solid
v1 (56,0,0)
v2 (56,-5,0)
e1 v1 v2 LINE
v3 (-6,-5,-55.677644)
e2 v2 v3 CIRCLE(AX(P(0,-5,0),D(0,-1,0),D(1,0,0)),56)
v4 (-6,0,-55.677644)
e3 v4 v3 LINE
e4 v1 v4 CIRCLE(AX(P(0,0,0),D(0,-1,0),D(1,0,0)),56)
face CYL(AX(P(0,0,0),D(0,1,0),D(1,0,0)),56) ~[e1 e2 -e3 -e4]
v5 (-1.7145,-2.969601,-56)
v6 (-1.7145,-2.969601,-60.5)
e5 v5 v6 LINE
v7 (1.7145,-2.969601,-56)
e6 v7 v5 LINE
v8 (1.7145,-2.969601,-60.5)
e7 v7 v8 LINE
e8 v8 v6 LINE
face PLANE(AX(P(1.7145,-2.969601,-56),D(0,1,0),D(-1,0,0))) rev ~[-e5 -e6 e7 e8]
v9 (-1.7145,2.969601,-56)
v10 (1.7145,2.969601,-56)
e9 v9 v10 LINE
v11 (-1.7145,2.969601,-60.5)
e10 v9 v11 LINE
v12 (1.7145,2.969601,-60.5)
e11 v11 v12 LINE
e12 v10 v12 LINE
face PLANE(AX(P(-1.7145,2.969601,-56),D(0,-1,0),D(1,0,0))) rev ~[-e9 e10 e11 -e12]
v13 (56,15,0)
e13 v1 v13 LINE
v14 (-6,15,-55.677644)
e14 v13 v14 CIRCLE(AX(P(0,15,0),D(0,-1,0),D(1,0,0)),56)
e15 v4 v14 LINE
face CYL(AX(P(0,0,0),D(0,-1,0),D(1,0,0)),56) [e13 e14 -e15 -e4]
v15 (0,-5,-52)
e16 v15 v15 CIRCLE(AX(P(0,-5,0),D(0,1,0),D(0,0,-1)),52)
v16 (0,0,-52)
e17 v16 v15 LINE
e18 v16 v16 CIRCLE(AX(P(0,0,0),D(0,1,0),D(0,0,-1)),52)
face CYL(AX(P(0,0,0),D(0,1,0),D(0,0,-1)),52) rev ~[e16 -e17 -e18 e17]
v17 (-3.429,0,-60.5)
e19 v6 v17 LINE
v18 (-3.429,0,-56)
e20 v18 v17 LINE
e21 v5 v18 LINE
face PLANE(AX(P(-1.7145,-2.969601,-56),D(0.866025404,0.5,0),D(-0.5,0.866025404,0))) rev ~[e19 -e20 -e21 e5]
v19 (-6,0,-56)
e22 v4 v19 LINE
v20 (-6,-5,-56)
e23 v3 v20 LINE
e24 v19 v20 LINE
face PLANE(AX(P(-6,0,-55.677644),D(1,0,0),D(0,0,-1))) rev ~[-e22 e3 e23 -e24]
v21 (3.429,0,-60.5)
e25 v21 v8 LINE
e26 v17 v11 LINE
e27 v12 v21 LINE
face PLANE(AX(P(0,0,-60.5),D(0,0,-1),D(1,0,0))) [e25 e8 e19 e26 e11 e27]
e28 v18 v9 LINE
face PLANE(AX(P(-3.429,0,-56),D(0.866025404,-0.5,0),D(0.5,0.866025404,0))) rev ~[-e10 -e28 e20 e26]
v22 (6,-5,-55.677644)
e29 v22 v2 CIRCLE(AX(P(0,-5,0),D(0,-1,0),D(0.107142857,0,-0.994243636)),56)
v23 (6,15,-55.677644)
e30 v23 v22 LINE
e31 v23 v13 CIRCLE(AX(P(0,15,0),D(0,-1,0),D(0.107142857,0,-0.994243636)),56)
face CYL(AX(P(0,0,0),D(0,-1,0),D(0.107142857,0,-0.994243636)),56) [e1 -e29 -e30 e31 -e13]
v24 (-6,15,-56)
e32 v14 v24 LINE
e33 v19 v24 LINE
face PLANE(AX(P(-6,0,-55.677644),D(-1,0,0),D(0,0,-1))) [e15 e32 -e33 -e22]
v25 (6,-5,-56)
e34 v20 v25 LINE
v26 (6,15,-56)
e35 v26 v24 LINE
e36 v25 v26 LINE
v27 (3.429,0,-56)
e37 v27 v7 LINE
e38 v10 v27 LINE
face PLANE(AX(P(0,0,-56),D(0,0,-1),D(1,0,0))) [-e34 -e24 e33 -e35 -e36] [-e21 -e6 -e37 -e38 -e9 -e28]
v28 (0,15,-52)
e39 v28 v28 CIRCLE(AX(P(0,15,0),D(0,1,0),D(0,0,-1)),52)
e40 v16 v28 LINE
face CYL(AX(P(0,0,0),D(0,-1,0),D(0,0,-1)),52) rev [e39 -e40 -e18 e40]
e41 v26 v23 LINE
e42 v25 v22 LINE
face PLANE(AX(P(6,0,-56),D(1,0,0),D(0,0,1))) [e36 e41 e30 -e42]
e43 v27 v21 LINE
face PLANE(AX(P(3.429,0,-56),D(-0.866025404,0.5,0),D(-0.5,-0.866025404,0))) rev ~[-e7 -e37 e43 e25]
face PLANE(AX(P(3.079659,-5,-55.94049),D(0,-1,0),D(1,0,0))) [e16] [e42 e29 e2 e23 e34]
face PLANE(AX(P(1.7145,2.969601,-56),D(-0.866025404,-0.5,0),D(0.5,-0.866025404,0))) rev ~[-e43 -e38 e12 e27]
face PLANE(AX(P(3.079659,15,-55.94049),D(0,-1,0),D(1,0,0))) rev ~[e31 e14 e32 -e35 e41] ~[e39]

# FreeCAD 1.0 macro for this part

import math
import FreeCAD as App
import Part
import Sketcher
from FreeCAD import Vector
Q = App.Units.Quantity


def add_polygon(sketch, points):
    """Adds a closed chain of lines whose ends are joined by coincident constraints."""
    first, n = sketch.GeometryCount, len(points)
    for a, b in zip(points, points[1:] + points[:1]):
        sketch.addGeometry(Part.LineSegment(App.Vector(*a, 0), App.Vector(*b, 0)), False)
    for i in range(n):
        sketch.addConstraint(Sketcher.Constraint("Coincident", first + i, 2, first + (i + 1) % n, 1))

doc = App.newDocument("Part")
body = doc.addObject("PartDesign::Body", "Body")

# Sketch on XZ plane
sketch1 = body.newObject("Sketcher::SketchObject", "Sketch")
sketch1.AttachmentSupport = (doc.getObject("XZ_Plane"), [""])
sketch1.MapMode = "FlatFace"
sketch1.addGeometry([
    Part.ArcOfCircle(Part.Circle(Vector(0, 0, 0), Vector(0, 0, 1), 56), math.radians(0), math.radians(263.84936)),  # 0
    Part.ArcOfCircle(Part.Circle(Vector(0, 0, 0), Vector(0, 0, 1), 56), math.radians(-96.15064), math.radians(-90)),  # 1
    Part.ArcOfCircle(Part.Circle(Vector(0, 0, 0), Vector(0, 0, 1), 56), math.radians(-90), math.radians(-83.84936)),  # 2
    Part.ArcOfCircle(Part.Circle(Vector(0, 0, 0), Vector(0, 0, 1), 56), math.radians(-83.84936), math.radians(0)),  # 3
    Part.Circle(Vector(0, 0, 0), Vector(0, 0, 1), 52),  # 4
], False)
sketch1.addConstraint([
    Sketcher.Constraint("Tangent", 0, 2, 1, 1),
    Sketcher.Constraint("Tangent", 1, 2, 2, 1),
    Sketcher.Constraint("Tangent", 2, 2, 3, 1),
    Sketcher.Constraint("Coincident", 3, 2, 0, 1),
    Sketcher.Constraint("Coincident", 0, 3, -1, 1),
    Sketcher.Constraint("Coincident", 2, 3, -1, 1),
    Sketcher.Constraint("Coincident", 4, 3, -1, 1),
    Sketcher.Constraint("PointOnObject", 1, 2, -2),
    Sketcher.Constraint("PointOnObject", 3, 2, -1),
    Sketcher.Constraint("Horizontal", 0, 2, 2, 2),
    Sketcher.Constraint("Diameter", 4, Q("104 mm")),
    Sketcher.Constraint("Radius", 0, Q("56 mm")),
    Sketcher.Constraint("DistanceX", 0, 2, -1, 1, Q("6 mm")),
])
pad1 = body.newObject("PartDesign::Pad", "Pad")
pad1.Profile = sketch1
pad1.Type = "TwoLengths"
pad1.Length = 15
pad1.Length2 = 5
pad1.Reversed = True

# Sketch on XZ plane
sketch2 = body.newObject("Sketcher::SketchObject", "Sketch001")
sketch2.AttachmentSupport = (doc.getObject("XZ_Plane"), [""])
sketch2.MapMode = "FlatFace"
sketch2.addGeometry([
    Part.LineSegment(Vector(6, -56, 0), Vector(6, -55.677644, 0)),  # 0
    Part.ArcOfCircle(Part.Circle(Vector(0, 0, 0), Vector(0, 0, 1), 56), math.radians(-90), math.radians(-83.84936)),  # 1
    Part.LineSegment(Vector(0, -56, 0), Vector(6, -56, 0)),  # 2
    Part.ArcOfCircle(Part.Circle(Vector(0, 0, 0), Vector(0, 0, 1), 56), math.radians(-96.15064), math.radians(-90)),  # 3
    Part.LineSegment(Vector(-6, -55.677644, 0), Vector(-6, -56, 0)),  # 4
    Part.LineSegment(Vector(-6, -56, 0), Vector(0, -56, 0)),  # 5
], False)
sketch2.addConstraint([
    Sketcher.Constraint("Coincident", 0, 2, 1, 2),
    Sketcher.Constraint("Tangent", 1, 1, 2, 1),
    Sketcher.Constraint("Coincident", 2, 2, 0, 1),
    Sketcher.Constraint("Coincident", 3, 1, 4, 1),
    Sketcher.Constraint("Coincident", 4, 2, 5, 1),
    Sketcher.Constraint("Tangent", 5, 2, 3, 2),
    Sketcher.Constraint("Vertical", 0),
    Sketcher.Constraint("Horizontal", 2),
    Sketcher.Constraint("Vertical", 4),
    Sketcher.Constraint("Horizontal", 5),
    Sketcher.Constraint("Coincident", 1, 3, -1, 1),
    Sketcher.Constraint("Coincident", 3, 3, -1, 1),
    Sketcher.Constraint("Equal", 1, 3),
    Sketcher.Constraint("Horizontal", 0, 2, 3, 1),
    Sketcher.Constraint("Radius", 1, Q("56 mm")),
    Sketcher.Constraint("DistanceX", 2, 1, 2, 2, Q("6 mm")),
])
pad2 = body.newObject("PartDesign::Pad", "Pad001")
pad2.Profile = sketch2
pad2.Type = "TwoLengths"
pad2.Length = 5
pad2.Length2 = 15

# Sketch on XY plane
sketch3 = body.newObject("Sketcher::SketchObject", "Sketch002")
sketch3.AttachmentSupport = (doc.getObject("XY_Plane"), [""])
sketch3.MapMode = "FlatFace"
sketch3.AttachmentOffset = App.Placement(Vector(0, 0, -56), App.Rotation())
add_polygon(sketch3, [(-1.7145, -2.969601), (-3.429, 0), (-1.7145, 2.969601), (1.7145, 2.969601), (3.429, 0), (1.7145, -2.969601)])  # lines 0-5
sketch3.addConstraint([
    Sketcher.Constraint("Horizontal", 2),
    Sketcher.Constraint("Horizontal", 5),
    Sketcher.Constraint("Symmetric", 0, 2, 3, 2, -1, 1),
    Sketcher.Constraint("Symmetric", 1, 2, 4, 2, -1, 1),
    Sketcher.Constraint("PointOnObject", 0, 2, -1),
    Sketcher.Constraint("Parallel", 0, 3),
    Sketcher.Constraint("Vertical", 2, 2, 4, 2),
    Sketcher.Constraint("Angle", 0, Q("120 deg")),
    Sketcher.Constraint("DistanceX", 2, 1, 2, 2, Q("3.429 mm")),
    Sketcher.Constraint("Distance", 0, Q("3.429 mm")),
])
pad3 = body.newObject("PartDesign::Pad", "Pad002")
pad3.Profile = sketch3
pad3.Length = 4.5
pad3.Reversed = True

doc.recompute()
